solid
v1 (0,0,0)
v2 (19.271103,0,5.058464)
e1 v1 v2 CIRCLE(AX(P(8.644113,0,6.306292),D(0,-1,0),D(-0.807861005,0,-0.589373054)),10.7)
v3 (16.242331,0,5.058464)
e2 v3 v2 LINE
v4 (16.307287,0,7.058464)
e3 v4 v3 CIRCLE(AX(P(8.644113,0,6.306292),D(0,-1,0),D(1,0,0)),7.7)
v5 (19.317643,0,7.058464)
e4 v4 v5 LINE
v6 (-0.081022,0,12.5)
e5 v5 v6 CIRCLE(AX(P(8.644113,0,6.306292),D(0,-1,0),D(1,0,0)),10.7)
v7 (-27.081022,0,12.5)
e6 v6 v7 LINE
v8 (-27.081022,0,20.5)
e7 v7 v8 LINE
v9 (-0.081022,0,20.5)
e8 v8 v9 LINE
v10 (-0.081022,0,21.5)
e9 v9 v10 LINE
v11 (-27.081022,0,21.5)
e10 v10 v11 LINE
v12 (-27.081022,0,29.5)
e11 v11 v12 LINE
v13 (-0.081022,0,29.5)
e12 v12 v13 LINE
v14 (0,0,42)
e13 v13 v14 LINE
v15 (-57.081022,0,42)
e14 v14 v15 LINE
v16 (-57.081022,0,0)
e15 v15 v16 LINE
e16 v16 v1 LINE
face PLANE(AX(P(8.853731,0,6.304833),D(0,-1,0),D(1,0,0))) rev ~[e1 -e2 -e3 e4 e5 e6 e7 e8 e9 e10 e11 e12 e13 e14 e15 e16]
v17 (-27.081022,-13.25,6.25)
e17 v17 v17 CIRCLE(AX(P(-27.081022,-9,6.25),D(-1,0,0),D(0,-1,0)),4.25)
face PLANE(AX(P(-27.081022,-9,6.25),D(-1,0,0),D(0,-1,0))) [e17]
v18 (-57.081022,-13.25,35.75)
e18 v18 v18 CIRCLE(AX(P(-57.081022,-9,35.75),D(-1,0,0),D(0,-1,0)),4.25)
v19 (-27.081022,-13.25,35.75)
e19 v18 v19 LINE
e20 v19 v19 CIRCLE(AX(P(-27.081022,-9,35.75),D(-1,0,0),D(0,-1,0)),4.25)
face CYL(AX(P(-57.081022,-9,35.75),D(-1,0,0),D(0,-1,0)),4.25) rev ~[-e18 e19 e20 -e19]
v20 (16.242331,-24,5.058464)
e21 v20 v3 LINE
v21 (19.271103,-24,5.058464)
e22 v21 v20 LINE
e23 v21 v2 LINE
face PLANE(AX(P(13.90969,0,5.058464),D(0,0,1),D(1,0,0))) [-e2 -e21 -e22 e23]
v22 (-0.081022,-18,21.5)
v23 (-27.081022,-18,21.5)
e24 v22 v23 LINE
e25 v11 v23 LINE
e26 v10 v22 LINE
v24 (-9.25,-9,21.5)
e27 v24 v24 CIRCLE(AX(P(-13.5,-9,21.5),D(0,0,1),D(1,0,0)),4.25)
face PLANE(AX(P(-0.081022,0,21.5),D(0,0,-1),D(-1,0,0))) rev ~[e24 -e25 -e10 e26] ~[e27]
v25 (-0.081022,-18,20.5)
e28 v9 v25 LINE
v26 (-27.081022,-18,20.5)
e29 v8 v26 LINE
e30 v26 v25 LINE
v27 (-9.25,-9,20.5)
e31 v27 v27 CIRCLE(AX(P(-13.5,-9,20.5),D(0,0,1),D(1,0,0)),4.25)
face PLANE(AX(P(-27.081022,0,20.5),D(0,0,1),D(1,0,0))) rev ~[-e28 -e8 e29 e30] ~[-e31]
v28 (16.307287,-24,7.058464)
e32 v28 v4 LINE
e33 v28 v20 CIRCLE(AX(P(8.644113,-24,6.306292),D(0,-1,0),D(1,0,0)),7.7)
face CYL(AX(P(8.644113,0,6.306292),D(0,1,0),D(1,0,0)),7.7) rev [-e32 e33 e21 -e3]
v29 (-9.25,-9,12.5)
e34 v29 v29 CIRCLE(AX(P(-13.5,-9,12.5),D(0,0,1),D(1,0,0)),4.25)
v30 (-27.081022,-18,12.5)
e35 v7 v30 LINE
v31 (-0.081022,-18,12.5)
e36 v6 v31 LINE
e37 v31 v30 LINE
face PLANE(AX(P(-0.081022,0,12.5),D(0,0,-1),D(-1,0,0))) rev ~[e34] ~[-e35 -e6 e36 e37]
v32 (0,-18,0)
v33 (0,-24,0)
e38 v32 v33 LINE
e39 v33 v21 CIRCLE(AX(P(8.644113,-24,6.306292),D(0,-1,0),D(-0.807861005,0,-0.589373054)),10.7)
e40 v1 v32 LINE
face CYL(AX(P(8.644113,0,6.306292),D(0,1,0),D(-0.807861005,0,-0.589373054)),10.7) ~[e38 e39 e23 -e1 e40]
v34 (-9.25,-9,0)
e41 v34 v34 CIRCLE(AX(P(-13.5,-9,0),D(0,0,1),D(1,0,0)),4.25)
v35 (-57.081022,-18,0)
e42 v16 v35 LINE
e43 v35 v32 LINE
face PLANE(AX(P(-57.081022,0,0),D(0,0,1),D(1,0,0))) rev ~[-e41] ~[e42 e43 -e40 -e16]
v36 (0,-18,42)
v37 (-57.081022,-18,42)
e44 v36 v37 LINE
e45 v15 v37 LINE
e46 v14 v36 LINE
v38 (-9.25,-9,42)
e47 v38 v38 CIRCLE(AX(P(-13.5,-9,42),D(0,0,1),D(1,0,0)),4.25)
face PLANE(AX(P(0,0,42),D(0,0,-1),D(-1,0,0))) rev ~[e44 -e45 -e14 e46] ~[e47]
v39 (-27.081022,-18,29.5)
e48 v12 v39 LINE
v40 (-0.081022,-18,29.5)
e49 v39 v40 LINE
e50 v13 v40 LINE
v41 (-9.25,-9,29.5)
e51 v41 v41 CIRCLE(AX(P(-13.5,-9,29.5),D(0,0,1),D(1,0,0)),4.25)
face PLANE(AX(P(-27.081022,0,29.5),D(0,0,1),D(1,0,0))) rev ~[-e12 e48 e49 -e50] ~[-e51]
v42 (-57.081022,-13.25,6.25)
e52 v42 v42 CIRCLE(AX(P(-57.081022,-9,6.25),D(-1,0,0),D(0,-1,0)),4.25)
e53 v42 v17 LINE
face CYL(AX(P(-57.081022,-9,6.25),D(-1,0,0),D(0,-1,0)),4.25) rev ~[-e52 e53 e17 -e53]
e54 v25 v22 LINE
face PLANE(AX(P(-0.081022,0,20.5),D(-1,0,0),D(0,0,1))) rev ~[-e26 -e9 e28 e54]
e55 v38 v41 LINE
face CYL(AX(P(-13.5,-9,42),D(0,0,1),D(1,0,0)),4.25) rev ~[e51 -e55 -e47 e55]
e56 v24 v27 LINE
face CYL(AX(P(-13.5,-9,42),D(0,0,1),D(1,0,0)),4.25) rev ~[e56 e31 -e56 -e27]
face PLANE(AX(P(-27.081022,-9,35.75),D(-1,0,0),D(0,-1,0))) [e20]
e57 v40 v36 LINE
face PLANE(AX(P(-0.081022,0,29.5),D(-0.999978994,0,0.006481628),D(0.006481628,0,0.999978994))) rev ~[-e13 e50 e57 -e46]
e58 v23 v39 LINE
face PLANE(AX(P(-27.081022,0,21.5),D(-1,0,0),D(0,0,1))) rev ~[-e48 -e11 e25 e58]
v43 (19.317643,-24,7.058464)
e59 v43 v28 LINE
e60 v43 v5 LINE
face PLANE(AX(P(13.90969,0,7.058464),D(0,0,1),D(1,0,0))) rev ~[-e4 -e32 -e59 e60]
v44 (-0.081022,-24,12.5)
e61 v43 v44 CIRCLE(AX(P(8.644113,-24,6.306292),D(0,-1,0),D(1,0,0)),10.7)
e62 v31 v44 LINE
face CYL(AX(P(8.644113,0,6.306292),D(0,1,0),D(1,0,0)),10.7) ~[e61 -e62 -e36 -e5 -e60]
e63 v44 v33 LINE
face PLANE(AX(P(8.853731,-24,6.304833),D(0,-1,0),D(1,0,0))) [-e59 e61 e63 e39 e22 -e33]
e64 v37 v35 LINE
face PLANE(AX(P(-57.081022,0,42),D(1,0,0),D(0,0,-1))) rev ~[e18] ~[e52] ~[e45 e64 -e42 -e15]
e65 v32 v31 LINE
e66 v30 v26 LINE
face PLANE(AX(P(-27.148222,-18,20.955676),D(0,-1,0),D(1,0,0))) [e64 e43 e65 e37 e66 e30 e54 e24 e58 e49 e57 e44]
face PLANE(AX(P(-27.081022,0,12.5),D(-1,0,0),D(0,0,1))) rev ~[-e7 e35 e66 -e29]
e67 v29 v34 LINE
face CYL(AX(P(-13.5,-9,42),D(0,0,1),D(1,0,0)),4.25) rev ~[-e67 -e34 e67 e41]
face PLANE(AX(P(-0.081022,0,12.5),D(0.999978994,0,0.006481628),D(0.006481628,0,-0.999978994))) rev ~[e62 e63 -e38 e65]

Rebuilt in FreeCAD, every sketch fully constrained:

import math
import FreeCAD as App
import Part
import Sketcher
Q = App.Units.Quantity

doc = App.newDocument("Part")
params = doc.addObject("Spreadsheet::Sheet", "Params")
for row, (alias, value) in enumerate([
    ("sketch1_width", "27 mm"),
    ("sketch1_height", "42 mm"),
    ("sketch1_height2", "8 mm"),
    ("sketch1_height3", "1 mm"),
    ("pad1_length", "18 mm"),
    ("sketch2_diameter", "8.5 mm"),
    ("pocket1_length", "30 mm"),
    ("sketch3_diameter", "8.5 mm"),
    ("pocket2_length", "100 mm"),
    ("sketch4_diameter", "15.4 mm"),
    ("sketch4_radius", "10.7 mm"),
    ("pad2_length", "24 mm"),
    ("sketch5_width", "8 mm"),
    ("sketch5_height", "2 mm"),
    ("pocket3_length", "40 mm"),
], start=1):
    params.set(f"A{row}", alias)
    params.set(f"B{row}", "=" + value)
    params.setAlias(f"B{row}", alias)

body = doc.addObject("PartDesign::Body", "Body")

# Sketch on XZ plane
sketch1 = body.newObject("Sketcher::SketchObject", "Sketch")
sketch1.AttachmentSupport = (doc.getObject("XZ_Plane"), [""])
sketch1.MapMode = "FlatFace"
sketch1.addGeometry(Part.LineSegment(App.Vector(-57.1, 42, 0), App.Vector(-57.1, 0, 0)), False)
sketch1.addGeometry(Part.LineSegment(App.Vector(-57.1, 0, 0), App.Vector(0, 0, 0)), False)
sketch1.addGeometry(Part.LineSegment(App.Vector(0, 0, 0), App.Vector(-0.1, 12.5, 0)), False)
sketch1.addGeometry(Part.LineSegment(App.Vector(-0.1, 12.5, 0), App.Vector(-27.1, 12.5, 0)), False)
sketch1.addGeometry(Part.LineSegment(App.Vector(-27.1, 12.5, 0), App.Vector(-27.1, 20.5, 0)), False)
sketch1.addGeometry(Part.LineSegment(App.Vector(-27.1, 20.5, 0), App.Vector(-0.1, 20.5, 0)), False)
sketch1.addGeometry(Part.LineSegment(App.Vector(-0.1, 20.5, 0), App.Vector(-0.1, 21.5, 0)), False)
sketch1.addGeometry(Part.LineSegment(App.Vector(-0.1, 21.5, 0), App.Vector(-27.1, 21.5, 0)), False)
sketch1.addGeometry(Part.LineSegment(App.Vector(-27.1, 21.5, 0), App.Vector(-27.1, 29.5, 0)), False)
sketch1.addGeometry(Part.LineSegment(App.Vector(-27.1, 29.5, 0), App.Vector(-0.1, 29.5, 0)), False)
sketch1.addGeometry(Part.LineSegment(App.Vector(-0.1, 29.5, 0), App.Vector(0, 42, 0)), False)
sketch1.addGeometry(Part.LineSegment(App.Vector(0, 42, 0), App.Vector(-57.1, 42, 0)), False)
sketch1.addConstraint(Sketcher.Constraint("Coincident", 0, 2, 1, 1))
sketch1.addConstraint(Sketcher.Constraint("Coincident", 1, 2, 2, 1))
sketch1.addConstraint(Sketcher.Constraint("Coincident", 2, 2, 3, 1))
sketch1.addConstraint(Sketcher.Constraint("Coincident", 3, 2, 4, 1))
sketch1.addConstraint(Sketcher.Constraint("Coincident", 4, 2, 5, 1))
sketch1.addConstraint(Sketcher.Constraint("Coincident", 5, 2, 6, 1))
sketch1.addConstraint(Sketcher.Constraint("Coincident", 6, 2, 7, 1))
sketch1.addConstraint(Sketcher.Constraint("Coincident", 7, 2, 8, 1))
sketch1.addConstraint(Sketcher.Constraint("Coincident", 8, 2, 9, 1))
sketch1.addConstraint(Sketcher.Constraint("Coincident", 9, 2, 10, 1))
sketch1.addConstraint(Sketcher.Constraint("Coincident", 10, 2, 11, 1))
sketch1.addConstraint(Sketcher.Constraint("Coincident", 11, 2, 0, 1))
sketch1.addConstraint(Sketcher.Constraint("Vertical", 0))
sketch1.addConstraint(Sketcher.Constraint("Horizontal", 1))
sketch1.addConstraint(Sketcher.Constraint("Horizontal", 3))
sketch1.addConstraint(Sketcher.Constraint("Vertical", 4))
sketch1.addConstraint(Sketcher.Constraint("Horizontal", 5))
sketch1.addConstraint(Sketcher.Constraint("Vertical", 6))
sketch1.addConstraint(Sketcher.Constraint("Horizontal", 7))
sketch1.addConstraint(Sketcher.Constraint("Vertical", 8))
sketch1.addConstraint(Sketcher.Constraint("Horizontal", 9))
sketch1.addConstraint(Sketcher.Constraint("Horizontal", 11))
sketch1.addConstraint(Sketcher.Constraint("Coincident", 1, 2, -1, 1))
sketch1.addConstraint(Sketcher.Constraint("PointOnObject", 10, 2, -2))
sketch1.addConstraint(Sketcher.Constraint("Vertical", 2, 2, 5, 2))
sketch1.addConstraint(Sketcher.Constraint("Vertical", 4, 2, 7, 2))
sketch1.addConstraint(Sketcher.Constraint("Vertical", 6, 2, 9, 2))
sketch1.addConstraint(Sketcher.Constraint("Equal", 4, 8))
sketch1.addConstraint(Sketcher.Constraint("Equal", 2, 10))
sketch1.addConstraint(Sketcher.Constraint("DistanceX", 3, 2, 3, 1, Q("27 mm")))
sketch1.addConstraint(Sketcher.Constraint("DistanceY", 0, 2, 0, 1, Q("42 mm")))
sketch1.addConstraint(Sketcher.Constraint("DistanceY", 4, 1, 4, 2, Q("8 mm")))
sketch1.addConstraint(Sketcher.Constraint("DistanceY", 6, 1, 6, 2, Q("1 mm")))
sketch1.addConstraint(Sketcher.Constraint("DistanceX", 0, 2, 2, 2, Q("57 mm")))
sketch1.addConstraint(Sketcher.Constraint("DistanceX", 1, 1, 1, 2, Q("57.081022 mm")))
sketch1.setExpression("Constraints[29]", "Params.sketch1_width")
sketch1.setExpression("Constraints[30]", "Params.sketch1_height")
sketch1.setExpression("Constraints[31]", "Params.sketch1_height2")
sketch1.setExpression("Constraints[32]", "Params.sketch1_height3")
pad1 = body.newObject("PartDesign::Pad", "Pad")
pad1.Profile = sketch1
pad1.setExpression("Length", "Params.pad1_length")

# Sketch on YZ plane
sketch2 = body.newObject("Sketcher::SketchObject", "Sketch001")
sketch2.AttachmentSupport = (doc.getObject("YZ_Plane"), [""])
sketch2.MapMode = "FlatFace"
sketch2.AttachmentOffset = App.Placement(App.Vector(0, 0, -57.081022), App.Rotation())
sketch2.addGeometry(Part.Circle(App.Vector(-9, 6.2, 0), App.Vector(0, 0, 1), 4.2), False)
sketch2.addGeometry(Part.Circle(App.Vector(-9, 35.8, 0), App.Vector(0, 0, 1), 4.2), False)
sketch2.addConstraint(Sketcher.Constraint("Equal", 0, 1))
sketch2.addConstraint(Sketcher.Constraint("Vertical", 0, 3, 1, 3))
sketch2.addConstraint(Sketcher.Constraint("Diameter", 0, Q("8.5 mm")))
sketch2.addConstraint(Sketcher.Constraint("DistanceX", 0, 3, -1, 1, Q("9 mm")))
sketch2.addConstraint(Sketcher.Constraint("DistanceY", 0, 3, 1, 3, Q("29.5 mm")))
sketch2.addConstraint(Sketcher.Constraint("DistanceY", -1, 1, 0, 3, Q("6.25 mm")))
sketch2.setExpression("Constraints[2]", "Params.sketch2_diameter")
pocket1 = body.newObject("PartDesign::Pocket", "Pocket")
pocket1.Profile = sketch2
pocket1.setExpression("Length", "Params.pocket1_length")
pocket1.Reversed = True

# Sketch on XY plane
sketch3 = body.newObject("Sketcher::SketchObject", "Sketch002")
sketch3.AttachmentSupport = (doc.getObject("XY_Plane"), [""])
sketch3.MapMode = "FlatFace"
sketch3.AttachmentOffset = App.Placement(App.Vector(0, 0, 42), App.Rotation())
sketch3.addGeometry(Part.Circle(App.Vector(-13.5, -9, 0), App.Vector(0, 0, 1), 4.2), False)
sketch3.addConstraint(Sketcher.Constraint("Diameter", 0, Q("8.5 mm")))
sketch3.addConstraint(Sketcher.Constraint("DistanceY", 0, 3, -1, 1, Q("9 mm")))
sketch3.addConstraint(Sketcher.Constraint("DistanceX", 0, 3, -1, 1, Q("13.5 mm")))
sketch3.setExpression("Constraints[0]", "Params.sketch3_diameter")
pocket2 = body.newObject("PartDesign::Pocket", "Pocket001")
pocket2.Profile = sketch3
pocket2.setExpression("Length", "Params.pocket2_length")

# Sketch on XZ plane
sketch4 = body.newObject("Sketcher::SketchObject", "Sketch003")
sketch4.AttachmentSupport = (doc.getObject("XZ_Plane"), [""])
sketch4.MapMode = "FlatFace"
sketch4.addGeometry(Part.LineSegment(App.Vector(0, 12, 0), App.Vector(0, 0, 0)), False)
sketch4.addGeometry(Part.ArcOfCircle(Part.Circle(App.Vector(9, 6, 0), App.Vector(0, 0, 1), 11), math.radians(-144), math.radians(0)), False)
sketch4.addGeometry(Part.ArcOfCircle(Part.Circle(App.Vector(9, 6, 0), App.Vector(0, 0, 1), 11), math.radians(0), math.radians(145)), False)
sketch4.addGeometry(Part.Circle(App.Vector(9, 6, 0), App.Vector(0, 0, 1), 8), False)
sketch4.addConstraint(Sketcher.Constraint("Coincident", 0, 2, 1, 1))
sketch4.addConstraint(Sketcher.Constraint("Tangent", 1, 2, 2, 1))
sketch4.addConstraint(Sketcher.Constraint("Coincident", 2, 2, 0, 1))
sketch4.addConstraint(Sketcher.Constraint("Coincident", 0, 2, -1, 1))
sketch4.addConstraint(Sketcher.Constraint("Coincident", 3, 3, 1, 3))
sketch4.addConstraint(Sketcher.Constraint("Equal", 1, 2))
sketch4.addConstraint(Sketcher.Constraint("Horizontal", 3, 3, 1, 2))
sketch4.addConstraint(Sketcher.Constraint("Diameter", 3, Q("15.4 mm")))
sketch4.addConstraint(Sketcher.Constraint("Radius", 1, Q("10.7 mm")))
sketch4.addConstraint(Sketcher.Constraint("DistanceY", -1, 1, 2, 2, Q("12.5 mm")))
sketch4.addConstraint(Sketcher.Constraint("DistanceY", -1, 1, 1, 3, Q("6.306292 mm")))
sketch4.setExpression("Constraints[7]", "Params.sketch4_diameter")
sketch4.setExpression("Constraints[8]", "Params.sketch4_radius")
pad2 = body.newObject("PartDesign::Pad", "Pad001")
pad2.Profile = sketch4
pad2.setExpression("Length", "Params.pad2_length")

# Sketch on XZ plane
sketch5 = body.newObject("Sketcher::SketchObject", "Sketch004")
sketch5.AttachmentSupport = (doc.getObject("XZ_Plane"), [""])
sketch5.MapMode = "FlatFace"
sketch5.addGeometry(Part.LineSegment(App.Vector(13.9, 7.1, 0), App.Vector(13.9, 5.1, 0)), False)
sketch5.addGeometry(Part.LineSegment(App.Vector(13.9, 5.1, 0), App.Vector(21.9, 5.1, 0)), False)
sketch5.addGeometry(Part.LineSegment(App.Vector(21.9, 5.1, 0), App.Vector(21.9, 7.1, 0)), False)
sketch5.addGeometry(Part.LineSegment(App.Vector(21.9, 7.1, 0), App.Vector(13.9, 7.1, 0)), False)
sketch5.addConstraint(Sketcher.Constraint("Coincident", 0, 2, 1, 1))
sketch5.addConstraint(Sketcher.Constraint("Coincident", 1, 2, 2, 1))
sketch5.addConstraint(Sketcher.Constraint("Coincident", 2, 2, 3, 1))
sketch5.addConstraint(Sketcher.Constraint("Coincident", 3, 2, 0, 1))
sketch5.addConstraint(Sketcher.Constraint("Vertical", 0))
sketch5.addConstraint(Sketcher.Constraint("Horizontal", 1))
sketch5.addConstraint(Sketcher.Constraint("Vertical", 2))
sketch5.addConstraint(Sketcher.Constraint("Horizontal", 3))
sketch5.addConstraint(Sketcher.Constraint("DistanceX", 1, 1, 1, 2, Q("8 mm")))
sketch5.addConstraint(Sketcher.Constraint("DistanceY", 0, 2, 0, 1, Q("2 mm")))
sketch5.addConstraint(Sketcher.Constraint("DistanceX", -1, 1, 0, 2, Q("13.90969 mm")))
sketch5.addConstraint(Sketcher.Constraint("DistanceY", -1, 1, 0, 2, Q("5.058464 mm")))
sketch5.setExpression("Constraints[8]", "Params.sketch5_width")
sketch5.setExpression("Constraints[9]", "Params.sketch5_height")
pocket3 = body.newObject("PartDesign::Pocket", "Pocket002")
pocket3.Profile = sketch5
pocket3.setExpression("Length", "Params.pocket3_length")
pocket3.Reversed = True

doc.recompute()
